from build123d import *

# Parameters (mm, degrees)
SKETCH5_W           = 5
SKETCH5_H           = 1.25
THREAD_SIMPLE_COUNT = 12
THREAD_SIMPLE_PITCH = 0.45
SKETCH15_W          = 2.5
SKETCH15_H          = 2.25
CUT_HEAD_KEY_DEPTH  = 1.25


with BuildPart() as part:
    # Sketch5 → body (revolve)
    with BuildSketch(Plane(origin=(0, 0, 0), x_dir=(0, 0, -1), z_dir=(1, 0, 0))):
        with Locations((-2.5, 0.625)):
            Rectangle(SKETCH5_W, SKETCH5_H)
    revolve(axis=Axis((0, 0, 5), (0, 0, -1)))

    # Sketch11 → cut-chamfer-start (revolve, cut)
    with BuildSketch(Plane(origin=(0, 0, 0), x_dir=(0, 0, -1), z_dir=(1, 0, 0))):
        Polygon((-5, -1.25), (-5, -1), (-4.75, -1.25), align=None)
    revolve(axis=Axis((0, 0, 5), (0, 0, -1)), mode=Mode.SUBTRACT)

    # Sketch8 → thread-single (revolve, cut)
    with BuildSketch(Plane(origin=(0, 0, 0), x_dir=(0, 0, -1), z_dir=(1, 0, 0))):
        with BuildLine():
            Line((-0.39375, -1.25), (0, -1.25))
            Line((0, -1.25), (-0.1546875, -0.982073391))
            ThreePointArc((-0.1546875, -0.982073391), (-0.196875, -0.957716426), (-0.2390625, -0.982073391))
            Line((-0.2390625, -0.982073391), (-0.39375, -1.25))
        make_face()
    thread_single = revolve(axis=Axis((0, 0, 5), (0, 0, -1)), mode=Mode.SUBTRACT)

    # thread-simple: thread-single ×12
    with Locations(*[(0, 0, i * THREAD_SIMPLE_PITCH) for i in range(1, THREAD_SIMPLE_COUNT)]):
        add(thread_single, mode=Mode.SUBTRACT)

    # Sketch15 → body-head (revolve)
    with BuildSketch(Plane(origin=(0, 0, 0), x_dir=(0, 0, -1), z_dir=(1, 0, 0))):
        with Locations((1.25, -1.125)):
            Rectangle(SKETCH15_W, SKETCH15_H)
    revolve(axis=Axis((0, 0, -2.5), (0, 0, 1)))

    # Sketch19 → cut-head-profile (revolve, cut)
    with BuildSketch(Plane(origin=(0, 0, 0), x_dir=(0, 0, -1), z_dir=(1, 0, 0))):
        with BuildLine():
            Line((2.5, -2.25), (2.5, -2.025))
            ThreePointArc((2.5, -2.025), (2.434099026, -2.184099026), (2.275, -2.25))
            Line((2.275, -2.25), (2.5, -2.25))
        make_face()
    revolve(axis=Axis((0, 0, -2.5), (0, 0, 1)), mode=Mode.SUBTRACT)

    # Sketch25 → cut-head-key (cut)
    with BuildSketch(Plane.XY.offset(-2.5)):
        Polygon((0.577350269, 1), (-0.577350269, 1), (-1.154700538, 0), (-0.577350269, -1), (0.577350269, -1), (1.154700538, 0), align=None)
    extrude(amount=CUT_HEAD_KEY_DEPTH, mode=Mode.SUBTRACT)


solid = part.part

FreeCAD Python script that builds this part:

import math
import FreeCAD as App
import Part
import Sketcher

V = App.Vector
Q = App.Units.Quantity

doc = App.newDocument("Part")
body = doc.addObject("PartDesign::Body", "Body")

sketch1 = doc.addObject("Sketcher::SketchObject", "Sketch")
body.addObject(sketch1)
sketch1.AttachmentSupport = (doc.YZ_Plane, [""])
sketch1.MapMode = "FlatFace"
sketch1.addGeometry([
    Part.LineSegment(V(1.2, 5, 0), V(0, 5, 0)),
    Part.LineSegment(V(0, 5, 0), V(0, 0, 0)),
    Part.LineSegment(V(0, 0, 0), V(1.2, 0, 0)),
    Part.LineSegment(V(1.2, 0, 0), V(1.2, 5, 0)),
], False)
sketch1.addConstraint([
    Sketcher.Constraint("Coincident", 0, 2, 1, 1),
    Sketcher.Constraint("Coincident", 1, 2, 2, 1),
    Sketcher.Constraint("Coincident", 2, 2, 3, 1),
    Sketcher.Constraint("Coincident", 3, 2, 0, 1),
    Sketcher.Constraint("Horizontal", 0),
    Sketcher.Constraint("Vertical", 1),
    Sketcher.Constraint("Horizontal", 2),
    Sketcher.Constraint("Vertical", 3),
    Sketcher.Constraint("Coincident", 1, 2, -1, 1),
    Sketcher.Constraint("DistanceY", 1, 2, 1, 1, Q("5 mm")),
    Sketcher.Constraint("DistanceX", 0, 2, 0, 1, Q("1.25 mm")),
])
revolution = doc.addObject("PartDesign::Revolution", "Revolution")
body.addObject(revolution)
revolution.Profile = sketch1
revolution.ReferenceAxis = (sketch1, ["V_Axis"])
revolution.Angle = 360

sketch2 = doc.addObject("Sketcher::SketchObject", "Sketch001")
body.addObject(sketch2)
sketch2.AttachmentSupport = (doc.YZ_Plane, [""])
sketch2.MapMode = "FlatFace"
sketch2.addGeometry([
    Part.LineSegment(V(-1, 5, 0), V(-1.25, 5, 0)),
    Part.LineSegment(V(-1.25, 5, 0), V(-1.25, 4.75, 0)),
    Part.LineSegment(V(-1.25, 4.75, 0), V(-1, 5, 0)),
], False)
sketch2.addConstraint([
    Sketcher.Constraint("Coincident", 0, 2, 1, 1),
    Sketcher.Constraint("Coincident", 1, 2, 2, 1),
    Sketcher.Constraint("Coincident", 2, 2, 0, 1),
    Sketcher.Constraint("Horizontal", 0),
    Sketcher.Constraint("Vertical", 1),
    Sketcher.Constraint("Equal", 0, 1),
    Sketcher.Constraint("DistanceY", -1, 1, 0, 2, Q("5 mm")),
    Sketcher.Constraint("DistanceX", 2, 2, -1, 1, Q("1 mm")),
    Sketcher.Constraint("DistanceX", 0, 2, 0, 1, Q("0.25 mm")),
])
groove = doc.addObject("PartDesign::Groove", "Groove")
body.addObject(groove)
groove.Profile = sketch2
groove.ReferenceAxis = (sketch2, ["V_Axis"])
groove.Angle = 360

sketch3 = doc.addObject("Sketcher::SketchObject", "Sketch002")
body.addObject(sketch3)
sketch3.AttachmentSupport = (doc.YZ_Plane, [""])
sketch3.MapMode = "FlatFace"
sketch3.addGeometry([
    Part.LineSegment(V(-1.25, 0.394, 0), V(-1.25, 0, 0)),
    Part.LineSegment(V(-1.25, 0, 0), V(-0.982, 0.155, 0)),
    Part.ArcOfCircle(Part.Circle(V(-1.006, 0.197, 0), V(0, 0, 1), 0.049), math.radians(-60), math.radians(60)),
    Part.LineSegment(V(-0.982, 0.239, 0), V(-1.25, 0.394, 0)),
], False)
sketch3.addConstraint([
    Sketcher.Constraint("Coincident", 0, 2, 1, 1),
    Sketcher.Constraint("Tangent", 1, 2, 2, 1),
    Sketcher.Constraint("Tangent", 2, 2, 3, 1),
    Sketcher.Constraint("Coincident", 3, 2, 0, 1),
    Sketcher.Constraint("Vertical", 0),
    Sketcher.Constraint("PointOnObject", 0, 2, -1),
    Sketcher.Constraint("Vertical", 1, 2, 2, 2),
    Sketcher.Constraint("Angle", 1, Q("30 deg")),
    Sketcher.Constraint("DistanceX", 0, 2, -1, 1, Q("1.25 mm")),
    Sketcher.Constraint("Radius", 2, Q("0.048714 mm")),
    Sketcher.Constraint("DistanceY", 0, 2, 0, 1, Q("0.39375 mm")),
])
groove2 = doc.addObject("PartDesign::Groove", "Groove001")
body.addObject(groove2)
groove2.Profile = sketch3
groove2.ReferenceAxis = (sketch3, ["V_Axis"])
groove2.Angle = 360
doc.recompute()

linearpattern = doc.addObject("PartDesign::LinearPattern", "LinearPattern")
body.addObject(linearpattern)
linearpattern.Originals = [groove2]
linearpattern.Direction = (doc.Z_Axis, [""])
linearpattern.Mode = "offset"
linearpattern.Offset = 0.45
linearpattern.Occurrences = 12
body.Tip = linearpattern

sketch4 = doc.addObject("Sketcher::SketchObject", "Sketch003")
body.addObject(sketch4)
sketch4.AttachmentSupport = (doc.YZ_Plane, [""])
sketch4.MapMode = "FlatFace"
sketch4.addGeometry([
    Part.LineSegment(V(0, 0, 0), V(-2.2, 0, 0)),
    Part.LineSegment(V(-2.2, 0, 0), V(-2.2, -2.5, 0)),
    Part.LineSegment(V(-2.2, -2.5, 0), V(0, -2.5, 0)),
    Part.LineSegment(V(0, -2.5, 0), V(0, 0, 0)),
], False)
sketch4.addConstraint([
    Sketcher.Constraint("Coincident", 0, 2, 1, 1),
    Sketcher.Constraint("Coincident", 1, 2, 2, 1),
    Sketcher.Constraint("Coincident", 2, 2, 3, 1),
    Sketcher.Constraint("Coincident", 3, 2, 0, 1),
    Sketcher.Constraint("Horizontal", 0),
    Sketcher.Constraint("Vertical", 1),
    Sketcher.Constraint("Horizontal", 2),
    Sketcher.Constraint("Vertical", 3),
    Sketcher.Constraint("Coincident", 3, 2, -1, 1),
    Sketcher.Constraint("DistanceY", 1, 2, 1, 1, Q("2.5 mm")),
    Sketcher.Constraint("DistanceX", 0, 2, 0, 1, Q("2.25 mm")),
])
revolution2 = doc.addObject("PartDesign::Revolution", "Revolution001")
body.addObject(revolution2)
revolution2.Profile = sketch4
revolution2.ReferenceAxis = (sketch4, ["V_Axis"])
revolution2.Angle = 360

sketch5 = doc.addObject("Sketcher::SketchObject", "Sketch004")
body.addObject(sketch5)
sketch5.AttachmentSupport = (doc.YZ_Plane, [""])
sketch5.MapMode = "FlatFace"
sketch5.addGeometry([
    Part.LineSegment(V(-2.25, -2.5, 0), V(-2.02, -2.5, 0)),
    Part.ArcOfCircle(Part.Circle(V(-2.03, -2.28, 0), V(0, 0, 1), 0.22), math.radians(180), math.radians(270)),
    Part.LineSegment(V(-2.25, -2.27, 0), V(-2.25, -2.5, 0)),
], False)
sketch5.addConstraint([
    Sketcher.Constraint("Tangent", 0, 2, 1, 2),
    Sketcher.Constraint("Tangent", 1, 1, 2, 1),
    Sketcher.Constraint("Coincident", 2, 2, 0, 1),
    Sketcher.Constraint("Horizontal", 0),
    Sketcher.Constraint("Vertical", 2),
    Sketcher.Constraint("Radius", 1, Q("0.225 mm")),
    Sketcher.Constraint("DistanceY", 0, 2, -1, 1, Q("2.5 mm")),
    Sketcher.Constraint("DistanceX", 1, 1, -1, 1, Q("2.25 mm")),
])
groove3 = doc.addObject("PartDesign::Groove", "Groove002")
body.addObject(groove3)
groove3.Profile = sketch5
groove3.ReferenceAxis = (sketch5, ["V_Axis"])
groove3.Angle = 360

sketch6 = doc.addObject("Sketcher::SketchObject", "Sketch005")
body.addObject(sketch6)
sketch6.AttachmentSupport = (doc.XY_Plane, [""])
sketch6.MapMode = "FlatFace"
sketch6.AttachmentOffset = App.Placement(V(0, 0, -2.5), App.Rotation())
sketch6.addGeometry([
    Part.LineSegment(V(0.6, 1, 0), V(-0.6, 1, 0)),
    Part.LineSegment(V(-0.6, 1, 0), V(-1.2, 0, 0)),
    Part.LineSegment(V(-1.2, 0, 0), V(-0.6, -1, 0)),
    Part.LineSegment(V(-0.6, -1, 0), V(0.6, -1, 0)),
    Part.LineSegment(V(0.6, -1, 0), V(1.2, 0, 0)),
    Part.LineSegment(V(1.2, 0, 0), V(0.6, 1, 0)),
], False)
sketch6.addConstraint([
    Sketcher.Constraint("Coincident", 0, 2, 1, 1),
    Sketcher.Constraint("Coincident", 1, 2, 2, 1),
    Sketcher.Constraint("Coincident", 2, 2, 3, 1),
    Sketcher.Constraint("Coincident", 3, 2, 4, 1),
    Sketcher.Constraint("Coincident", 4, 2, 5, 1),
    Sketcher.Constraint("Coincident", 5, 2, 0, 1),
    Sketcher.Constraint("Horizontal", 0),
    Sketcher.Constraint("Horizontal", 3),
    Sketcher.Constraint("Symmetric", 0, 2, 3, 2, -1, 1),
    Sketcher.Constraint("Symmetric", 1, 2, 4, 2, -1, 1),
    Sketcher.Constraint("PointOnObject", 1, 2, -1),
    Sketcher.Constraint("Parallel", 2, 5),
    Sketcher.Constraint("Vertical", 0, 2, 2, 2),
    Sketcher.Constraint("Angle", 1, Q("-120 deg")),
    Sketcher.Constraint("DistanceY", -1, 1, 0, 2, Q("1 mm")),
    Sketcher.Constraint("DistanceX", 0, 2, 0, 1, Q("1.154701 mm")),
])
pocket1 = doc.addObject("PartDesign::Pocket", "Pocket")
body.addObject(pocket1)
pocket1.Profile = sketch6
pocket1.Length = 1.25
pocket1.Reversed = True

doc.recompute()
